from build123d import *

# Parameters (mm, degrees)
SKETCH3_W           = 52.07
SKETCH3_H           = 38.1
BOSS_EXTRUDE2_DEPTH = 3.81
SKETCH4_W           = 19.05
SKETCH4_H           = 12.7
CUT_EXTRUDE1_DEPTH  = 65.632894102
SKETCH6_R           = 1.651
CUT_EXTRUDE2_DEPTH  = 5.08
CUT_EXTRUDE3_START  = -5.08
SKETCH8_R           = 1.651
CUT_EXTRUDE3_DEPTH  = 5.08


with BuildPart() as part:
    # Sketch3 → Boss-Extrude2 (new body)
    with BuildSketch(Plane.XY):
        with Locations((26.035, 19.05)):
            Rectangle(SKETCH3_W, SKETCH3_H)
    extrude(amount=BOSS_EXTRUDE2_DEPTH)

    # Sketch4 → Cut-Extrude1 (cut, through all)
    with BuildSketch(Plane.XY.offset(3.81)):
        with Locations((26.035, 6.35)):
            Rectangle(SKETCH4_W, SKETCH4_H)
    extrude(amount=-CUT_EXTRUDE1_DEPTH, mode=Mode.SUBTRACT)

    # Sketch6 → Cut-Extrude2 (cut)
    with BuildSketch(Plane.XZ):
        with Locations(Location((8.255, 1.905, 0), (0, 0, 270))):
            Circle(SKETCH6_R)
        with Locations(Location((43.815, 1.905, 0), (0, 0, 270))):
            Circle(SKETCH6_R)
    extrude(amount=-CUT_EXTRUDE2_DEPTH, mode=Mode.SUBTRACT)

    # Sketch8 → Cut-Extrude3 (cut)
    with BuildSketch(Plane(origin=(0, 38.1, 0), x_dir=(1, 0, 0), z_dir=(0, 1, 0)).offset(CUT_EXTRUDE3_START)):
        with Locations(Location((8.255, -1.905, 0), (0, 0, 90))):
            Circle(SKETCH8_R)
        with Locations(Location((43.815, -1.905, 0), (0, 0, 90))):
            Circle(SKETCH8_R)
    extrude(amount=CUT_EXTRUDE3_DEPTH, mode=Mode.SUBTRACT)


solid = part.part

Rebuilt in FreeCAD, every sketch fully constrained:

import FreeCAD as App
import Part
import Sketcher

V = App.Vector
Q = App.Units.Quantity

doc = App.newDocument("Part")
body = doc.addObject("PartDesign::Body", "Body")

# Sketch on XY plane
sketch1 = body.newObject("Sketcher::SketchObject", "Sketch")
sketch1.AttachmentSupport = (doc.getObject("XY_Plane"), [""])
sketch1.MapMode = "FlatFace"
sketch1.addGeometry(Part.LineSegment(V(0, 38, 0), V(0, 0, 0)), False)
sketch1.addGeometry(Part.LineSegment(V(0, 0, 0), V(52, 0, 0)), False)
sketch1.addGeometry(Part.LineSegment(V(52, 0, 0), V(52, 38, 0)), False)
sketch1.addGeometry(Part.LineSegment(V(52, 38, 0), V(0, 38, 0)), False)
sketch1.addConstraint(Sketcher.Constraint("Coincident", 0, 2, 1, 1))
sketch1.addConstraint(Sketcher.Constraint("Coincident", 1, 2, 2, 1))
sketch1.addConstraint(Sketcher.Constraint("Coincident", 2, 2, 3, 1))
sketch1.addConstraint(Sketcher.Constraint("Coincident", 3, 2, 0, 1))
sketch1.addConstraint(Sketcher.Constraint("Vertical", 0))
sketch1.addConstraint(Sketcher.Constraint("Horizontal", 1))
sketch1.addConstraint(Sketcher.Constraint("Vertical", 2))
sketch1.addConstraint(Sketcher.Constraint("Horizontal", 3))
sketch1.addConstraint(Sketcher.Constraint("Coincident", 0, 2, -1, 1))
sketch1.addConstraint(Sketcher.Constraint("DistanceY", 0, 2, 0, 1, Q("1.5 in")))
sketch1.addConstraint(Sketcher.Constraint("DistanceX", 1, 1, 1, 2, Q("2.05 in")))
pad1 = body.newObject("PartDesign::Pad", "Pad")
pad1.Profile = sketch1
pad1.Length = Q("0.15 in")

# Sketch on XY plane
sketch2 = body.newObject("Sketcher::SketchObject", "Sketch001")
sketch2.AttachmentSupport = (doc.getObject("XY_Plane"), [""])
sketch2.MapMode = "FlatFace"
sketch2.AttachmentOffset = App.Placement(V(0, 0, 0.15 * 25.4), App.Rotation())
sketch2.addGeometry(Part.LineSegment(V(17, 13, 0), V(17, 0, 0)), False)
sketch2.addGeometry(Part.LineSegment(V(17, 0, 0), V(36, 0, 0)), False)
sketch2.addGeometry(Part.LineSegment(V(36, 0, 0), V(36, 13, 0)), False)
sketch2.addGeometry(Part.LineSegment(V(36, 13, 0), V(17, 13, 0)), False)
sketch2.addConstraint(Sketcher.Constraint("Coincident", 0, 2, 1, 1))
sketch2.addConstraint(Sketcher.Constraint("Coincident", 1, 2, 2, 1))
sketch2.addConstraint(Sketcher.Constraint("Coincident", 2, 2, 3, 1))
sketch2.addConstraint(Sketcher.Constraint("Coincident", 3, 2, 0, 1))
sketch2.addConstraint(Sketcher.Constraint("Vertical", 0))
sketch2.addConstraint(Sketcher.Constraint("Horizontal", 1))
sketch2.addConstraint(Sketcher.Constraint("Vertical", 2))
sketch2.addConstraint(Sketcher.Constraint("Horizontal", 3))
sketch2.addConstraint(Sketcher.Constraint("PointOnObject", 0, 2, -1))
sketch2.addConstraint(Sketcher.Constraint("DistanceY", 0, 2, 0, 1, Q("0.5 in")))
sketch2.addConstraint(Sketcher.Constraint("DistanceX", 1, 1, 1, 2, Q("0.75 in")))
sketch2.addConstraint(Sketcher.Constraint("DistanceX", -1, 1, 1, 2, Q("1.4 in")))
pocket1 = body.newObject("PartDesign::Pocket", "Pocket")
pocket1.Profile = sketch2
pocket1.Type = "ThroughAll"

# Sketch on XZ plane
sketch3 = body.newObject("Sketcher::SketchObject", "Sketch002")
sketch3.AttachmentSupport = (doc.getObject("XZ_Plane"), [""])
sketch3.MapMode = "FlatFace"
sketch3.addGeometry(Part.Circle(V(8.3, 1.9, 0), V(0, 0, 1), 1.7), False)
sketch3.addGeometry(Part.Circle(V(43.8, 1.9, 0), V(0, 0, 1), 1.7), False)
sketch3.addConstraint(Sketcher.Constraint("Equal", 0, 1))
sketch3.addConstraint(Sketcher.Constraint("Horizontal", 0, 3, 1, 3))
sketch3.addConstraint(Sketcher.Constraint("Diameter", 0, Q("0.13 in")))
sketch3.addConstraint(Sketcher.Constraint("DistanceX", 0, 3, 1, 3, Q("1.4 in")))
sketch3.addConstraint(Sketcher.Constraint("DistanceX", -1, 1, 0, 3, Q("0.325 in")))
sketch3.addConstraint(Sketcher.Constraint("DistanceY", -1, 1, 0, 3, Q("0.075 in")))
pocket2 = body.newObject("PartDesign::Pocket", "Pocket001")
pocket2.Profile = sketch3
pocket2.Length = Q("0.2 in")

# Sketch on XZ plane
sketch4 = body.newObject("Sketcher::SketchObject", "Sketch003")
sketch4.AttachmentSupport = (doc.getObject("XZ_Plane"), [""])
sketch4.MapMode = "FlatFace"
sketch4.AttachmentOffset = App.Placement(V(0, 0, -1.3 * 25.4), App.Rotation())
sketch4.addGeometry(Part.Circle(V(8.3, 1.9, 0), V(0, 0, 1), 1.7), False)
sketch4.addGeometry(Part.Circle(V(43.8, 1.9, 0), V(0, 0, 1), 1.7), False)
sketch4.addConstraint(Sketcher.Constraint("Equal", 0, 1))
sketch4.addConstraint(Sketcher.Constraint("Horizontal", 0, 3, 1, 3))
sketch4.addConstraint(Sketcher.Constraint("Diameter", 0, Q("0.13 in")))
sketch4.addConstraint(Sketcher.Constraint("DistanceX", 0, 3, 1, 3, Q("1.4 in")))
sketch4.addConstraint(Sketcher.Constraint("DistanceX", -1, 1, 0, 3, Q("0.325 in")))
sketch4.addConstraint(Sketcher.Constraint("DistanceY", -1, 1, 0, 3, Q("0.075 in")))
pocket3 = body.newObject("PartDesign::Pocket", "Pocket002")
pocket3.Profile = sketch4
pocket3.Length = Q("0.2 in")

doc.recompute()
